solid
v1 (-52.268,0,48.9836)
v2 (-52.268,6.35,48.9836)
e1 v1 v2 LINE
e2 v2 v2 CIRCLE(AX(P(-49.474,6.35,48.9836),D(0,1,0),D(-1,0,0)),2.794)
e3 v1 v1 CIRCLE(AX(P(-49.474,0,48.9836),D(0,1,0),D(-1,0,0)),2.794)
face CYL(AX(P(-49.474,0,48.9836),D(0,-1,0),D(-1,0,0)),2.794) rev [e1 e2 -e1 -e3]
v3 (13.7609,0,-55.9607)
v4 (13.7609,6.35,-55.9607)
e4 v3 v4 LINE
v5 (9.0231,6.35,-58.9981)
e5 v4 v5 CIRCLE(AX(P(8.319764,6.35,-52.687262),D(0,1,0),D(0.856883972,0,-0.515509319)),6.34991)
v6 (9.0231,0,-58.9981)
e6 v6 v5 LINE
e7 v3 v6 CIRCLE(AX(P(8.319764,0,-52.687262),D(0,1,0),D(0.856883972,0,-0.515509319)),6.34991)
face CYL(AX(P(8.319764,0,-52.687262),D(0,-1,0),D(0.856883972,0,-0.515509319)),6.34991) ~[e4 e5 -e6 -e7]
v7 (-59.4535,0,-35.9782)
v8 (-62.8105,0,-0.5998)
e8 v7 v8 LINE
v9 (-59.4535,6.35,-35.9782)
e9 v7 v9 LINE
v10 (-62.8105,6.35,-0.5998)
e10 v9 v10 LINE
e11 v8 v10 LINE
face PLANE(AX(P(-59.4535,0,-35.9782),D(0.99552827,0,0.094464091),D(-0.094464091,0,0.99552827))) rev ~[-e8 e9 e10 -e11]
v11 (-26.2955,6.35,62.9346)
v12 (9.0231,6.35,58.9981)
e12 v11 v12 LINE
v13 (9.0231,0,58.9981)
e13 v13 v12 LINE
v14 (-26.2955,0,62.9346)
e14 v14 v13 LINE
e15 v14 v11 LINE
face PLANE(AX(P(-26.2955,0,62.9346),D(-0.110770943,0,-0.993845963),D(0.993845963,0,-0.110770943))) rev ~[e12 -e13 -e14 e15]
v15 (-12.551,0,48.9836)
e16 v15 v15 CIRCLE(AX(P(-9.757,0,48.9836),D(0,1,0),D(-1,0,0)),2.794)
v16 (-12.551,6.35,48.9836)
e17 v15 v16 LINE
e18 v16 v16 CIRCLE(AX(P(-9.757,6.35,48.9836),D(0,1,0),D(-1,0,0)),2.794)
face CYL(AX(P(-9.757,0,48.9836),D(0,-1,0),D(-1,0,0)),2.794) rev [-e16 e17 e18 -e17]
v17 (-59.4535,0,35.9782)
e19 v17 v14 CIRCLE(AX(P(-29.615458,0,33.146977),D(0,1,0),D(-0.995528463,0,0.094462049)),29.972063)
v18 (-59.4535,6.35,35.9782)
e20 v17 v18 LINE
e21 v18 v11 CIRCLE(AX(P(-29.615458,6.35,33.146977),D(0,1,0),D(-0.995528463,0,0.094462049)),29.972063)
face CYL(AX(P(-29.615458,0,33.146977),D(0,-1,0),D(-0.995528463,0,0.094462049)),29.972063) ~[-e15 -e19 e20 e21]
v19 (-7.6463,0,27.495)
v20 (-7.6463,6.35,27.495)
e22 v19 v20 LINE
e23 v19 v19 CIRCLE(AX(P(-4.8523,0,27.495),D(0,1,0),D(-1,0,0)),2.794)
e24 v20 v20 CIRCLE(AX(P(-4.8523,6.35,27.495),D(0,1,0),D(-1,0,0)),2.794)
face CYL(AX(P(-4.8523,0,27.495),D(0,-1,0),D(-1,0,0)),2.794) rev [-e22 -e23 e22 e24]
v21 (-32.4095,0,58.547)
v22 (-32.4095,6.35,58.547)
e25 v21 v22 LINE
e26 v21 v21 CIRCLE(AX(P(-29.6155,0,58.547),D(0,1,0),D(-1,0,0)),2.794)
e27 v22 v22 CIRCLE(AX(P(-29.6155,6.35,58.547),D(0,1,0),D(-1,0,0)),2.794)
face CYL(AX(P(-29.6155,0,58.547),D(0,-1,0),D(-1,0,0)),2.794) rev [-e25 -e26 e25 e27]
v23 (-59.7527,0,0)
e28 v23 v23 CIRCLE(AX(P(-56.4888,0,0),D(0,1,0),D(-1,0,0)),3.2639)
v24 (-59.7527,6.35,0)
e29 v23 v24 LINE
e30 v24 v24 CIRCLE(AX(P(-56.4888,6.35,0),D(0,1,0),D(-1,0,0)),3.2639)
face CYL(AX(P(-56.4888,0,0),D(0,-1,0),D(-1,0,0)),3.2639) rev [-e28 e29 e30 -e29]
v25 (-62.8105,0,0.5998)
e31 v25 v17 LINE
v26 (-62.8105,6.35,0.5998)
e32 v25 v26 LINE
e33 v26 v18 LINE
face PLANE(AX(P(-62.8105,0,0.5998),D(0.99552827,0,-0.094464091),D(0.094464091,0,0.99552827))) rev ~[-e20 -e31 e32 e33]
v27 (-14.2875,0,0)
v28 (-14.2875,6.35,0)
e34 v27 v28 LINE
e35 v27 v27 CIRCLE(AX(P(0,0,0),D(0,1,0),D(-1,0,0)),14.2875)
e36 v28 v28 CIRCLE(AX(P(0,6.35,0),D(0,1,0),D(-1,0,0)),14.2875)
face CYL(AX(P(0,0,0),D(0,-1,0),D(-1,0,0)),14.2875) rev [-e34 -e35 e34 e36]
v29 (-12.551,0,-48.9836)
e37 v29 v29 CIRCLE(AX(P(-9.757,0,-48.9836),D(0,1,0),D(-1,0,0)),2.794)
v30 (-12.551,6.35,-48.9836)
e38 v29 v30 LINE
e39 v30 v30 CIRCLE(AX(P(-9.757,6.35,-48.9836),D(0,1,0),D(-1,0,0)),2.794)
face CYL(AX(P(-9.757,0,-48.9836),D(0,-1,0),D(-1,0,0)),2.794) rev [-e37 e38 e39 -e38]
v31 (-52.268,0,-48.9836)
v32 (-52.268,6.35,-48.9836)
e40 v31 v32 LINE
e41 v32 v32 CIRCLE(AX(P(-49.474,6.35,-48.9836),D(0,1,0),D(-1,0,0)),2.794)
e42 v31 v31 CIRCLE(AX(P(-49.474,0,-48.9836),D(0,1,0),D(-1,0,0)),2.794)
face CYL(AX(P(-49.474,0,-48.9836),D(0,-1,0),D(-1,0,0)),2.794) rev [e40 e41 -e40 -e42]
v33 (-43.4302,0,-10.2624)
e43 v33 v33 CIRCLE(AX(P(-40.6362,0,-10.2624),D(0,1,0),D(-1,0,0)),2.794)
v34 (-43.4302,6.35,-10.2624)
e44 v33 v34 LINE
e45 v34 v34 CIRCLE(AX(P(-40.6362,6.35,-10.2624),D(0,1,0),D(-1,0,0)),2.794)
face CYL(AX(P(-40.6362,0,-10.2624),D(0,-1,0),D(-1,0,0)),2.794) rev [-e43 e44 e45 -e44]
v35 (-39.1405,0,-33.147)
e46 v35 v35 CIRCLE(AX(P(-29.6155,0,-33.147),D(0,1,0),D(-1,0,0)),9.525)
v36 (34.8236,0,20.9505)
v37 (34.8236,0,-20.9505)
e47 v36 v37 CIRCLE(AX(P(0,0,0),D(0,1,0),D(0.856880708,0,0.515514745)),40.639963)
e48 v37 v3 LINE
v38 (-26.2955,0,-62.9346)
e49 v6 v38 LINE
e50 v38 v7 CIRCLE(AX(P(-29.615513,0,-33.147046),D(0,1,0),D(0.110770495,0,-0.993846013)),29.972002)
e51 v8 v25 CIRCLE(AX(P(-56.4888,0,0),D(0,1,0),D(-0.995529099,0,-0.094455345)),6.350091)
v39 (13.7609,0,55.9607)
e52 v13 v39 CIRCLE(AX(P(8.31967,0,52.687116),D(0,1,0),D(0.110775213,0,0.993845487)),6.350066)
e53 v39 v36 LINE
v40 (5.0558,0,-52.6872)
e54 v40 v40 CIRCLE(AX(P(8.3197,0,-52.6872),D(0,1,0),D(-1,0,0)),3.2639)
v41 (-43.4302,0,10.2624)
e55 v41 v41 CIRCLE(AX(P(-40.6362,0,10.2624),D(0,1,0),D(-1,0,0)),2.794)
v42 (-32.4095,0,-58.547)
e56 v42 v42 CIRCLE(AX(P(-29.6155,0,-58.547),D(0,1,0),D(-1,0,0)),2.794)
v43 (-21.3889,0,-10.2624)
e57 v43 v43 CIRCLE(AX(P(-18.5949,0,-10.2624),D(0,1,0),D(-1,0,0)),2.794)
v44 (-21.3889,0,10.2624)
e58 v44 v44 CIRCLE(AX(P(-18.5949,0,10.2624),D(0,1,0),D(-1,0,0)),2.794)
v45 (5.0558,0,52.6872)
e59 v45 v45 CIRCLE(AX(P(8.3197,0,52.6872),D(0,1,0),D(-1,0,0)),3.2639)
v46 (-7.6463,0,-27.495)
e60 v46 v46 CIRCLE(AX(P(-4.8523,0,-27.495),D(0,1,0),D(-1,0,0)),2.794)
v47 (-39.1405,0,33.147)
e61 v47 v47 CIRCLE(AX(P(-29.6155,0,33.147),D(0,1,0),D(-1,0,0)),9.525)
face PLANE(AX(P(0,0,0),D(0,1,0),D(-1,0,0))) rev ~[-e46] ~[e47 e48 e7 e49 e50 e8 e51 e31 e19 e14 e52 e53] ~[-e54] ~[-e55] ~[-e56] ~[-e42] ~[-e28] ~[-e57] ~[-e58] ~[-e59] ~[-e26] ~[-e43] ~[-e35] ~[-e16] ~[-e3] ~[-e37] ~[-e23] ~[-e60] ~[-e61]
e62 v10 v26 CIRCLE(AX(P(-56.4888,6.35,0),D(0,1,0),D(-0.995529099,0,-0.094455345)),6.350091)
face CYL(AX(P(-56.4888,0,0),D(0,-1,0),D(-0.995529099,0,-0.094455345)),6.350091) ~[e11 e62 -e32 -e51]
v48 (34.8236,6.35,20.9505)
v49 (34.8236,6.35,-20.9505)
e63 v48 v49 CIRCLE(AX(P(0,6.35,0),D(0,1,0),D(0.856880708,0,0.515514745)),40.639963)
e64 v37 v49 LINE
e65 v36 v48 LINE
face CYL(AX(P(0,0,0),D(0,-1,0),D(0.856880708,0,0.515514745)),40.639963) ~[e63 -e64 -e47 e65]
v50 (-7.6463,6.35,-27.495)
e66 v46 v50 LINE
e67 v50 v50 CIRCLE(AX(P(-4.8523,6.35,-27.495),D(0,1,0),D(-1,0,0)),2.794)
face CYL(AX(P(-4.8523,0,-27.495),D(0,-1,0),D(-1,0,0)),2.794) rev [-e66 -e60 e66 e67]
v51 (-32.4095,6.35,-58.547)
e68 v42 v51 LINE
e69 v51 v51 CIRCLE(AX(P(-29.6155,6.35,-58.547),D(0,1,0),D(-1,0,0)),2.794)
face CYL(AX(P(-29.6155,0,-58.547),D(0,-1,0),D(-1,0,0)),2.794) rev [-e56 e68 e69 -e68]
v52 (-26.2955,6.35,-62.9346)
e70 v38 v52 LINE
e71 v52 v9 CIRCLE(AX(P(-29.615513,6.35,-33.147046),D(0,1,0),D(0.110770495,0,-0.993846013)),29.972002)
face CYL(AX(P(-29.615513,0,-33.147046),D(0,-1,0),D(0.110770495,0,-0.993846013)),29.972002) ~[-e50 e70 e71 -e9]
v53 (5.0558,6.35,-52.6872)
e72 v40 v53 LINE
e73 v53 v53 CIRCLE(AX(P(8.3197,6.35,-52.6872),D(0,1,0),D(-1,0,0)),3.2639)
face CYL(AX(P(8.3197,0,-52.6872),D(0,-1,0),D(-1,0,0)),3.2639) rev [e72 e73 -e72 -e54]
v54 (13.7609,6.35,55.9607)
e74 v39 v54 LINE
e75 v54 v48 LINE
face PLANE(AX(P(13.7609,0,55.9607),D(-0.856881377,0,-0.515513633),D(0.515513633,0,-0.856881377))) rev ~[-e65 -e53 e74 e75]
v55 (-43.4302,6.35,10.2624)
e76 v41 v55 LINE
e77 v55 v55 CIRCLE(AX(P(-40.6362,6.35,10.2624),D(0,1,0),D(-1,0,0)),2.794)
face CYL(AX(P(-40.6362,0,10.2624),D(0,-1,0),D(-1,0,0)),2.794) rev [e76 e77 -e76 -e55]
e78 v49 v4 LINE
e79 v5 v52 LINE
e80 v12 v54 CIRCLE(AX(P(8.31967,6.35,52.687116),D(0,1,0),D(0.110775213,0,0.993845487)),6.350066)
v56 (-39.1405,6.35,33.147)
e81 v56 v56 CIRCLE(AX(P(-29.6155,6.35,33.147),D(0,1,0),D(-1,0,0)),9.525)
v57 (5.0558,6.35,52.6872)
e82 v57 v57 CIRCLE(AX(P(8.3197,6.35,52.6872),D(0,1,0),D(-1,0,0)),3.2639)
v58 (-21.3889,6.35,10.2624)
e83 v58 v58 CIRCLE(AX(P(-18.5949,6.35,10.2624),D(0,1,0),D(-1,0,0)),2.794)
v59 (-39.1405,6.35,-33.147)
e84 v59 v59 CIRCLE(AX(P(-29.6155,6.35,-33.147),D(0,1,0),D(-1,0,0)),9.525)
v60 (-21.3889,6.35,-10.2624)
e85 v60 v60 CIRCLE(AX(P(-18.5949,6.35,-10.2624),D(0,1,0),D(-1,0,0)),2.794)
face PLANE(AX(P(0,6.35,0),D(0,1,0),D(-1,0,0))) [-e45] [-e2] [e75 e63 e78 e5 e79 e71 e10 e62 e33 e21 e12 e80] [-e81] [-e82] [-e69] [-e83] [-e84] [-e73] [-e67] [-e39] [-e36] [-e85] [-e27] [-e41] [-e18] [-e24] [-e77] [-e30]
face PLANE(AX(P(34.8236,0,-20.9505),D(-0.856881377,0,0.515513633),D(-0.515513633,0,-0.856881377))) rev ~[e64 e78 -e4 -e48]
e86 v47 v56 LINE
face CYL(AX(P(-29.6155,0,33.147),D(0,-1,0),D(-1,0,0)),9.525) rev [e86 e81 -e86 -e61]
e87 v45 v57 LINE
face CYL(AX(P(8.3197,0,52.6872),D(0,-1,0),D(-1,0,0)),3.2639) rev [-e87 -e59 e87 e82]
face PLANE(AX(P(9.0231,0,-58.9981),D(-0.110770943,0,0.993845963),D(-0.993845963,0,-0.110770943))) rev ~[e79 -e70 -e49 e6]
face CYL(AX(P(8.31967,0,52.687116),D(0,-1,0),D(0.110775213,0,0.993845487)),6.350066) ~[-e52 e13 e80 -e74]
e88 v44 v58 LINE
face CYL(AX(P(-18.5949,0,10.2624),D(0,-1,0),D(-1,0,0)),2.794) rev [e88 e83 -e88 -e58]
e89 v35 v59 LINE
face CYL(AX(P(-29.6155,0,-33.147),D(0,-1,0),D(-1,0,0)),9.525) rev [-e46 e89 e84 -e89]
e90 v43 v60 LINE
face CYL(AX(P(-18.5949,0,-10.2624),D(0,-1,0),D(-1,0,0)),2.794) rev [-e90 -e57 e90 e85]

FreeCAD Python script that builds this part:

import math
import FreeCAD as App
import Part
import Sketcher

V = App.Vector
Q = App.Units.Quantity

doc = App.newDocument("Part")
params = doc.addObject("Spreadsheet::Sheet", "Params")
for row, (alias, value) in enumerate([
    ("sketch1_diameter", "0.22 in"),
    ("sketch1_diameter2", "0.75 in"),
    ("sketch1_radius", "1.18 in"),
    ("sketch1_radius2", "0.25 in"),
    ("sketch1_diameter3", "0.257 in"),
    ("pad1_length", "0.25 in"),
], start=1):
    params.set(f"A{row}", alias)
    params.set(f"B{row}", "=" + value)
    params.setAlias(f"B{row}", alias)

body = doc.addObject("PartDesign::Body", "Body")

# Sketch on XZ plane
sketch1 = doc.addObject("Sketcher::SketchObject", "Sketch")
body.addObject(sketch1)
sketch1.AttachmentSupport = (doc.XZ_Plane, [""])
sketch1.MapMode = "FlatFace"
sketch1.addGeometry([
    Part.ArcOfCircle(Part.Circle(V(-29.6155, 33.147, 0), V(0, 0, 1), 29.972019), math.radians(83.640302), math.radians(174.579677)),  # 0
    Part.LineSegment(V(-26.2955, 62.9346, 0), V(9.0231, 58.9981, 0)),  # 1
    Part.ArcOfCircle(Part.Circle(V(8.3197, 52.6872, 0), V(0, 0, 1), 6.35), math.radians(31.031689), math.radians(83.640179)),  # 2
    Part.LineSegment(V(13.7609, 55.9607, 0), V(34.8236, 20.9505, 0)),  # 3
    Part.ArcOfCircle(Part.Circle(V(0, 0, 0), V(0, 0, 1), 40.639963), math.radians(-31.031867), math.radians(31.031867)),  # 4
    Part.LineSegment(V(34.8236, -20.9505, 0), V(13.7609, -55.9607, 0)),  # 5
    Part.ArcOfCircle(Part.Circle(V(8.3197, -52.6872, 0), V(0, 0, 1), 6.349997), math.radians(-83.640179), math.radians(-31.031689)),  # 6
    Part.LineSegment(V(9.0231, -58.9981, 0), V(-26.2955, -62.9346, 0)),  # 7
    Part.ArcOfCircle(Part.Circle(V(-29.6155, -33.147, 0), V(0, 0, 1), 29.972), math.radians(-174.579677), math.radians(-83.640302)),  # 8
    Part.LineSegment(V(-59.4535, -35.9782, 0), V(-62.8105, -0.5998, 0)),  # 9
    Part.ArcOfCircle(Part.Circle(V(-56.4888, 0, 0), V(0, 0, 1), 6.350091), math.radians(174.580028), math.radians(185.419972)),  # 10
    Part.LineSegment(V(-62.8105, 0.5998, 0), V(-59.4535, 35.9782, 0)),  # 11
    Part.Circle(V(8.3197, -52.6872, 0), V(0, 0, 1), 3.2639),  # 12
    Part.Circle(V(-9.757, -48.9836, 0), V(0, 0, 1), 2.794),  # 13
    Part.Circle(V(-4.8523, -27.495, 0), V(0, 0, 1), 2.794),  # 14
    Part.Circle(V(-29.6155, -58.547, 0), V(0, 0, 1), 2.794),  # 15
    Part.Circle(V(-29.6155, -33.147, 0), V(0, 0, 1), 9.525),  # 16
    Part.Circle(V(-49.474, -48.9836, 0), V(0, 0, 1), 2.794),  # 17
    Part.Circle(V(-18.5949, -10.2624, 0), V(0, 0, 1), 2.794),  # 18
    Part.Circle(V(-40.6362, -10.2624, 0), V(0, 0, 1), 2.794),  # 19
    Part.Circle(V(0, 0, 0), V(0, 0, 1), 14.2875),  # 20
    Part.Circle(V(-4.8523, 27.495, 0), V(0, 0, 1), 2.794),  # 21
    Part.Circle(V(8.3197, 52.6872, 0), V(0, 0, 1), 3.2639),  # 22
    Part.Circle(V(-9.757, 48.9836, 0), V(0, 0, 1), 2.794),  # 23
    Part.Circle(V(-18.5949, 10.2624, 0), V(0, 0, 1), 2.794),  # 24
    Part.Circle(V(-40.6362, 10.2624, 0), V(0, 0, 1), 2.794),  # 25
    Part.Circle(V(-56.4888, 0, 0), V(0, 0, 1), 3.2639),  # 26
    Part.Circle(V(-29.6155, 33.147, 0), V(0, 0, 1), 9.525),  # 27
    Part.Circle(V(-29.6155, 58.547, 0), V(0, 0, 1), 2.794),  # 28
    Part.Circle(V(-49.474, 48.9836, 0), V(0, 0, 1), 2.794),  # 29
], False)
sketch1.addConstraint([
    Sketcher.Constraint("Tangent", 0, 1, 1, 1),
    Sketcher.Constraint("Tangent", 1, 2, 2, 2),
    Sketcher.Constraint("Tangent", 2, 1, 3, 1),
    Sketcher.Constraint("Tangent", 3, 2, 4, 2),
    Sketcher.Constraint("Tangent", 4, 1, 5, 1),
    Sketcher.Constraint("Tangent", 5, 2, 6, 2),
    Sketcher.Constraint("Tangent", 6, 1, 7, 1),
    Sketcher.Constraint("Tangent", 7, 2, 8, 2),
    Sketcher.Constraint("Tangent", 8, 1, 9, 1),
    Sketcher.Constraint("Tangent", 9, 2, 10, 2),
    Sketcher.Constraint("Tangent", 10, 1, 11, 1),
    Sketcher.Constraint("Tangent", 11, 2, 0, 2),
    Sketcher.Constraint("Coincident", 4, 3, -1, 1),
    Sketcher.Constraint("Coincident", 20, 3, -1, 1),
    Sketcher.Constraint("Coincident", 12, 3, 6, 3),
    Sketcher.Constraint("Coincident", 16, 3, 8, 3),
    Sketcher.Constraint("Coincident", 22, 3, 2, 3),
    Sketcher.Constraint("Coincident", 26, 3, 10, 3),
    Sketcher.Constraint("Coincident", 27, 3, 0, 3),
    Sketcher.Constraint("Equal", 2, 6),
    Sketcher.Constraint("Equal", 0, 8),
    Sketcher.Constraint("Equal", 6, 10),
    Sketcher.Constraint("Equal", 13, 14),
    Sketcher.Constraint("Equal", 14, 15),
    Sketcher.Constraint("Equal", 15, 17),
    Sketcher.Constraint("Equal", 17, 18),
    Sketcher.Constraint("Equal", 18, 19),
    Sketcher.Constraint("Equal", 19, 21),
    Sketcher.Constraint("Equal", 12, 22),
    Sketcher.Constraint("Equal", 21, 23),
    Sketcher.Constraint("Equal", 23, 24),
    Sketcher.Constraint("Equal", 24, 25),
    Sketcher.Constraint("Equal", 22, 26),
    Sketcher.Constraint("Equal", 16, 27),
    Sketcher.Constraint("Equal", 25, 28),
    Sketcher.Constraint("Equal", 28, 29),
    Sketcher.Constraint("Symmetric", 2, 3, 6, 3, -1),
    Sketcher.Constraint("Symmetric", 0, 3, 8, 3, -1),
    Sketcher.Constraint("Symmetric", 14, 3, 21, 3, -1),
    Sketcher.Constraint("Symmetric", 13, 3, 23, 3, -1),
    Sketcher.Constraint("Symmetric", 18, 3, 24, 3, -1),
    Sketcher.Constraint("Symmetric", 19, 3, 25, 3, -1),
    Sketcher.Constraint("Symmetric", 15, 3, 28, 3, -1),
    Sketcher.Constraint("Symmetric", 17, 3, 29, 3, -1),
    Sketcher.Constraint("PointOnObject", 10, 3, -1),
    Sketcher.Constraint("Horizontal", 13, 3, 17, 3),
    Sketcher.Constraint("Horizontal", 18, 3, 19, 3),
    Sketcher.Constraint("Vertical", 8, 3, 15, 3),
    Sketcher.Constraint("Equal", 7, 9),
    Sketcher.Constraint("Diameter", 13, Q("0.22 in")),
    Sketcher.Constraint("Diameter", 16, Q("0.75 in")),
    Sketcher.Constraint("Radius", 0, Q("1.18 in")),
    Sketcher.Constraint("Radius", 2, Q("0.25 in")),
    Sketcher.Constraint("Diameter", 12, Q("0.257 in")),
    Sketcher.Constraint("Diameter", 20, Q("1.125 in")),
    Sketcher.Constraint("Radius", 4, Q("1.6 in")),
    Sketcher.Constraint("DistanceY", 15, 3, 8, 3, Q("1 in")),
    Sketcher.Constraint("Angle", 1, Q("-6.3598 deg")),
    Sketcher.Constraint("Angle", 9, Q("95.4205 deg")),
    Sketcher.Constraint("DistanceY", 8, 3, 0, 3, Q("2.61 in")),
    Sketcher.Constraint("DistanceX", -1, 1, 3, 2, Q("1.371 in")),
    Sketcher.Constraint("DistanceY", 13, 3, 14, 3, Q("0.846 in")),
    Sketcher.Constraint("DistanceX", 9, 2, 19, 3, Q("0.873 in")),
    Sketcher.Constraint("DistanceY", 13, 3, -1, 1, Q("1.9285 in")),
    Sketcher.Constraint("DistanceX", 17, 3, -1, 1, Q("1.9478 in")),
    Sketcher.Constraint("DistanceX", 13, 3, 14, 3, Q("0.1931 in")),
    Sketcher.Constraint("DistanceY", 18, 3, 21, 3, Q("1.4865 in")),
    Sketcher.Constraint("DistanceX", 23, 3, 2, 1, Q("0.9259 in")),
    Sketcher.Constraint("DistanceX", 18, 3, -1, 1, Q("18.595 mm")),
])
sketch1.setExpression("Constraints[49]", "Params.sketch1_diameter")
sketch1.setExpression("Constraints[50]", "Params.sketch1_diameter2")
sketch1.setExpression("Constraints[51]", "Params.sketch1_radius")
sketch1.setExpression("Constraints[52]", "Params.sketch1_radius2")
sketch1.setExpression("Constraints[53]", "Params.sketch1_diameter3")
pad1 = doc.addObject("PartDesign::Pad", "Pad")
body.addObject(pad1)
pad1.Profile = sketch1
pad1.setExpression("Length", "Params.pad1_length")
pad1.Reversed = True

doc.recompute()
